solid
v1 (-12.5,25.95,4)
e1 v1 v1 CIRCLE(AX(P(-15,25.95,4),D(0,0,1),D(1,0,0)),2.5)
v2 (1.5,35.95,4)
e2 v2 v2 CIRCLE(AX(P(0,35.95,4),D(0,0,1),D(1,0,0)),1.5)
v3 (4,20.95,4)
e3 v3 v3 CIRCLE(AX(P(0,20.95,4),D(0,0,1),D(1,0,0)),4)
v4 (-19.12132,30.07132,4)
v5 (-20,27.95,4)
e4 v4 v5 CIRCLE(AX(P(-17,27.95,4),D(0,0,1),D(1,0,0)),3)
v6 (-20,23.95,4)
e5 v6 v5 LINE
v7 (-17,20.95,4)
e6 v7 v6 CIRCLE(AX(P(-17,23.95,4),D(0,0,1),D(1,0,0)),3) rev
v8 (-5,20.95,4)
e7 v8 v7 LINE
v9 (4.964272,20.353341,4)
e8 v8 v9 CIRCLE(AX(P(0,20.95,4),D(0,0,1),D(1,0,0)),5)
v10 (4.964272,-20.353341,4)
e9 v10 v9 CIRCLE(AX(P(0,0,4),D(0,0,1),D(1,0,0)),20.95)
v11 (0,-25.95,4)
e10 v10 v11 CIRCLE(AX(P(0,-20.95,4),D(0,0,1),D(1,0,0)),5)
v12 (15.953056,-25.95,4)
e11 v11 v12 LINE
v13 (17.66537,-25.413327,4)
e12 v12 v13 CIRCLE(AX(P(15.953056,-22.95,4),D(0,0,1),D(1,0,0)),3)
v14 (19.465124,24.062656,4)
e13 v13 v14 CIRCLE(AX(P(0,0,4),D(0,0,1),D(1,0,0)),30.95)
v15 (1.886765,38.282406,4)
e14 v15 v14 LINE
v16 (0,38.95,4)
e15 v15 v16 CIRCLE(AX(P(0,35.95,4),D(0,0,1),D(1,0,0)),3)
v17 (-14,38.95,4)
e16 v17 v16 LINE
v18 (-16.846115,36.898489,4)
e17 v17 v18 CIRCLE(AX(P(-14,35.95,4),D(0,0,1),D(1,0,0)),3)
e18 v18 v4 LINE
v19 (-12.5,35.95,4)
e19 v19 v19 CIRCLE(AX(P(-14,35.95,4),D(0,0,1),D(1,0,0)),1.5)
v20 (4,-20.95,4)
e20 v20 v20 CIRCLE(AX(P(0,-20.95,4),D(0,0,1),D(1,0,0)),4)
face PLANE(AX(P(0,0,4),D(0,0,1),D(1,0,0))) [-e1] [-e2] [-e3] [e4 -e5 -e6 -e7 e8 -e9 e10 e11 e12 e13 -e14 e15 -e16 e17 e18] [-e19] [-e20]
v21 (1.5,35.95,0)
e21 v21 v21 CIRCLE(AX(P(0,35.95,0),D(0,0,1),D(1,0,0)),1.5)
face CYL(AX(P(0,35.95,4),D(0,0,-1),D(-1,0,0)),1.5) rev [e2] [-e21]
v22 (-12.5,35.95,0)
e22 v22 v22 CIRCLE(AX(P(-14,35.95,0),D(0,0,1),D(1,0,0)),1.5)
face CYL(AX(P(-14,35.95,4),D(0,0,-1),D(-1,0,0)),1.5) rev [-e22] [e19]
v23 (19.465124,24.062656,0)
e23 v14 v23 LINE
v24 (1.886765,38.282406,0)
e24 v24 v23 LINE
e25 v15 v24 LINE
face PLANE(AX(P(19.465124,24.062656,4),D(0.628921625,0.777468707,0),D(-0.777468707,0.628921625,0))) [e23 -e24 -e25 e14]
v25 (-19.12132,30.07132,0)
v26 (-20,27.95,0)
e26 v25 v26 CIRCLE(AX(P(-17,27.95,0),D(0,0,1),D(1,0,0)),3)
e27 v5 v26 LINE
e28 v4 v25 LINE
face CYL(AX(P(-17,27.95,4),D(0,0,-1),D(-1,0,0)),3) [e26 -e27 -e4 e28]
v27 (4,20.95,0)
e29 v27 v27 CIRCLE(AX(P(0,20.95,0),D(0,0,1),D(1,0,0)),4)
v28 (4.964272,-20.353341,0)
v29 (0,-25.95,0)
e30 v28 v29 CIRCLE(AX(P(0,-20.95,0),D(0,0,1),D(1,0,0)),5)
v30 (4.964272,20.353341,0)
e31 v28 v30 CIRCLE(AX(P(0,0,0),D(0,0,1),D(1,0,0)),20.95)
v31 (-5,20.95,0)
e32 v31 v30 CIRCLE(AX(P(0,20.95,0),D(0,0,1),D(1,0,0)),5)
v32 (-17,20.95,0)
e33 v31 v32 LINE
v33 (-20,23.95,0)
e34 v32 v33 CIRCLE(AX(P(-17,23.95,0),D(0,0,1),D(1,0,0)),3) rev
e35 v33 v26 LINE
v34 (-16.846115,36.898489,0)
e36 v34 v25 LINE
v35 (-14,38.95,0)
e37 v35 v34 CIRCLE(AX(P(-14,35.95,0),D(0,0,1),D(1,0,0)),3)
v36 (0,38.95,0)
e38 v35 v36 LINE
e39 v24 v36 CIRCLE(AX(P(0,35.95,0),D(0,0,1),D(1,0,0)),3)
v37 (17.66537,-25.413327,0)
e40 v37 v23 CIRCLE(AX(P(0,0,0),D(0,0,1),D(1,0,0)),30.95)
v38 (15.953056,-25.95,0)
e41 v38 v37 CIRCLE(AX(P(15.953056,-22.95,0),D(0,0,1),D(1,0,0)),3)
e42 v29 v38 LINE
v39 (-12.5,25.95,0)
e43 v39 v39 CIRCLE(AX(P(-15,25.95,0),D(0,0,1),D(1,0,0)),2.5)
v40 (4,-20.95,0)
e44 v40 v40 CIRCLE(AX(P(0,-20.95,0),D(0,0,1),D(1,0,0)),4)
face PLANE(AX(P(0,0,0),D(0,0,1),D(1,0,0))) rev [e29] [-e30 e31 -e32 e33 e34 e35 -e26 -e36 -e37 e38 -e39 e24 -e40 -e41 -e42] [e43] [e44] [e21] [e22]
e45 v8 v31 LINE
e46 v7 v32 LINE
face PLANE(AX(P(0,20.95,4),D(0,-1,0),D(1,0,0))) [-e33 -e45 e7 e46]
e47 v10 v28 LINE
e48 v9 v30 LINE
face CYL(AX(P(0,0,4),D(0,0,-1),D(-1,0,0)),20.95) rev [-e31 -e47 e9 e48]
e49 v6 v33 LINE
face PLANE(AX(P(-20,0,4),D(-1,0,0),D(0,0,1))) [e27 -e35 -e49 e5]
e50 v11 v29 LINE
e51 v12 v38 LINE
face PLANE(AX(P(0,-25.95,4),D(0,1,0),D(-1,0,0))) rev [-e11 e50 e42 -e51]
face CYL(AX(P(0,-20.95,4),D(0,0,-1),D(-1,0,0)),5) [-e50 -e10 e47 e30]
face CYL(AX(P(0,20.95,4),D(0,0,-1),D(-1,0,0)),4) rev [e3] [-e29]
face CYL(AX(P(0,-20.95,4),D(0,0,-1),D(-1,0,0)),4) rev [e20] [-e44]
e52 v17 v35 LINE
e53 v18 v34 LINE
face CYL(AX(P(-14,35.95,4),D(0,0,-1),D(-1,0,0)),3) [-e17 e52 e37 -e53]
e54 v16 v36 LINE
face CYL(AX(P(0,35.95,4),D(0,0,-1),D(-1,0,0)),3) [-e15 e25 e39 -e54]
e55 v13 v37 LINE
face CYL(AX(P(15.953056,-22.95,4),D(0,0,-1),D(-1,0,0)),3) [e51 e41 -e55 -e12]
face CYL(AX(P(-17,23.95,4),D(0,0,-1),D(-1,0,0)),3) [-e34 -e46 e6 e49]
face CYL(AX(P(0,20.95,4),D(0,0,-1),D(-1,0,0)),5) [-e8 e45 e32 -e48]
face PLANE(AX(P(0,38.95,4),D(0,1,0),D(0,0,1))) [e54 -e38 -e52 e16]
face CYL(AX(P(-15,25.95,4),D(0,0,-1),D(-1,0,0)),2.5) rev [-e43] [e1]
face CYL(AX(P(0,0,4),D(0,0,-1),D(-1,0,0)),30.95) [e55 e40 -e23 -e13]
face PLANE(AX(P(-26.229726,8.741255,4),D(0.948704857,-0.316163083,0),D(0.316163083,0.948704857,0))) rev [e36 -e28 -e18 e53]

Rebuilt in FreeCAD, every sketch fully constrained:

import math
import FreeCAD as App
import Part
import Sketcher

V = App.Vector
Q = App.Units.Quantity

doc = App.newDocument("Part")
body = doc.addObject("PartDesign::Body", "Body")

# Sketch on XY plane
sketch1 = doc.addObject("Sketcher::SketchObject", "Sketch")
body.addObject(sketch1)
sketch1.AttachmentSupport = (doc.XY_Plane, [""])
sketch1.MapMode = "FlatFace"
sketch1.addGeometry(Part.ArcOfCircle(Part.Circle(V(0, 0, 0), V(0, 0, 1), 30.9), math.radians(-55), math.radians(51)), False)
sketch1.addGeometry(Part.LineSegment(V(19.5, 24.1, 0), V(1.9, 38.3, 0)), False)
sketch1.addGeometry(Part.ArcOfCircle(Part.Circle(V(0, 35.9, 0), V(0, 0, 1), 3), math.radians(51), math.radians(90)), False)
sketch1.addGeometry(Part.LineSegment(V(0, 39, 0), V(-14, 39, 0)), False)
sketch1.addGeometry(Part.ArcOfCircle(Part.Circle(V(-14, 36, 0), V(0, 0, 1), 3), math.radians(90), math.radians(162)), False)
sketch1.addGeometry(Part.LineSegment(V(-16.8, 36.9, 0), V(-19.1, 30.1, 0)), False)
sketch1.addGeometry(Part.ArcOfCircle(Part.Circle(V(-17, 28, 0), V(0, 0, 1), 3), math.radians(135), math.radians(180)), False)
sketch1.addGeometry(Part.LineSegment(V(-20, 27.9, 0), V(-20, 23.9, 0)), False)
sketch1.addGeometry(Part.ArcOfCircle(Part.Circle(V(-17, 23.9, 0), V(0, 0, 1), 3), math.radians(180), math.radians(270)), False)
sketch1.addGeometry(Part.LineSegment(V(-17, 20.9, 0), V(-5, 20.9, 0)), False)
sketch1.addGeometry(Part.ArcOfCircle(Part.Circle(V(0, 21, 0), V(0, 0, 1), 5), math.radians(-180), math.radians(-7)), False)
sketch1.addGeometry(Part.ArcOfCircle(Part.Circle(V(0, 0, 0), V(0, 0, 1), 20.9), math.radians(-76), math.radians(76)), False)
sketch1.addGeometry(Part.ArcOfCircle(Part.Circle(V(0, -20.9, 0), V(0, 0, 1), 5), math.radians(7), math.radians(270)), False)
sketch1.addGeometry(Part.LineSegment(V(0, -25.9, 0), V(16, -25.9, 0)), False)
sketch1.addGeometry(Part.ArcOfCircle(Part.Circle(V(16, -22.9, 0), V(0, 0, 1), 3), math.radians(-90), math.radians(-55)), False)
sketch1.addGeometry(Part.Circle(V(0, -20.9, 0), V(0, 0, 1), 4), False)
sketch1.addGeometry(Part.Circle(V(-15, 25.9, 0), V(0, 0, 1), 2.5), False)
sketch1.addGeometry(Part.Circle(V(-14, 36, 0), V(0, 0, 1), 1.5), False)
sketch1.addGeometry(Part.Circle(V(0, 20.9, 0), V(0, 0, 1), 4), False)
sketch1.addGeometry(Part.Circle(V(0, 36, 0), V(0, 0, 1), 1.5), False)
sketch1.addConstraint(Sketcher.Constraint("Tangent", 0, 2, 1, 1))
sketch1.addConstraint(Sketcher.Constraint("Tangent", 1, 2, 2, 1))
sketch1.addConstraint(Sketcher.Constraint("Tangent", 2, 2, 3, 1))
sketch1.addConstraint(Sketcher.Constraint("Tangent", 3, 2, 4, 1))
sketch1.addConstraint(Sketcher.Constraint("Tangent", 4, 2, 5, 1))
sketch1.addConstraint(Sketcher.Constraint("Coincident", 5, 2, 6, 1))
sketch1.addConstraint(Sketcher.Constraint("Tangent", 6, 2, 7, 1))
sketch1.addConstraint(Sketcher.Constraint("Tangent", 7, 2, 8, 1))
sketch1.addConstraint(Sketcher.Constraint("Tangent", 8, 2, 9, 1))
sketch1.addConstraint(Sketcher.Constraint("Coincident", 9, 2, 10, 1))
sketch1.addConstraint(Sketcher.Constraint("Coincident", 10, 2, 11, 2))
sketch1.addConstraint(Sketcher.Constraint("Coincident", 11, 1, 12, 1))
sketch1.addConstraint(Sketcher.Constraint("Tangent", 12, 2, 13, 1))
sketch1.addConstraint(Sketcher.Constraint("Tangent", 13, 2, 14, 1))
sketch1.addConstraint(Sketcher.Constraint("Tangent", 14, 2, 0, 1))
sketch1.addConstraint(Sketcher.Constraint("Horizontal", 3))
sketch1.addConstraint(Sketcher.Constraint("Vertical", 7))
sketch1.addConstraint(Sketcher.Constraint("Horizontal", 9))
sketch1.addConstraint(Sketcher.Constraint("Horizontal", 13))
sketch1.addConstraint(Sketcher.Constraint("Coincident", 0, 3, -1, 1))
sketch1.addConstraint(Sketcher.Constraint("Coincident", 11, 3, -1, 1))
sketch1.addConstraint(Sketcher.Constraint("Coincident", 15, 3, 12, 3))
sketch1.addConstraint(Sketcher.Constraint("Coincident", 17, 3, 4, 3))
sketch1.addConstraint(Sketcher.Constraint("Coincident", 18, 3, 10, 3))
sketch1.addConstraint(Sketcher.Constraint("Coincident", 19, 3, 2, 3))
sketch1.addConstraint(Sketcher.Constraint("Equal", 2, 4))
sketch1.addConstraint(Sketcher.Constraint("Equal", 4, 6))
sketch1.addConstraint(Sketcher.Constraint("Equal", 6, 8))
sketch1.addConstraint(Sketcher.Constraint("Equal", 10, 12))
sketch1.addConstraint(Sketcher.Constraint("Equal", 8, 14))
sketch1.addConstraint(Sketcher.Constraint("Equal", 15, 18))
sketch1.addConstraint(Sketcher.Constraint("Equal", 17, 19))
sketch1.addConstraint(Sketcher.Constraint("Symmetric", 10, 3, 12, 3, -1, 1))
sketch1.addConstraint(Sketcher.Constraint("PointOnObject", 2, 3, -2))
sketch1.addConstraint(Sketcher.Constraint("PointOnObject", 10, 3, -2))
sketch1.addConstraint(Sketcher.Constraint("Horizontal", 18, 3, 8, 2))
sketch1.addConstraint(Sketcher.Constraint("Diameter", 15, Q("8 mm")))
sketch1.addConstraint(Sketcher.Constraint("Diameter", 16, Q("5 mm")))
sketch1.addConstraint(Sketcher.Constraint("Diameter", 17, Q("3 mm")))
sketch1.addConstraint(Sketcher.Constraint("Radius", 2, Q("3 mm")))
sketch1.addConstraint(Sketcher.Constraint("Radius", 10, Q("5 mm")))
sketch1.addConstraint(Sketcher.Constraint("DistanceX", 3, 2, 3, 1, Q("14 mm")))
sketch1.addConstraint(Sketcher.Constraint("DistanceX", 9, 1, 9, 2, Q("12 mm")))
sketch1.addConstraint(Sketcher.Constraint("DistanceY", 7, 2, 7, 1, Q("4 mm")))
sketch1.addConstraint(Sketcher.Constraint("Radius", 0, Q("30.95 mm")))
sketch1.addConstraint(Sketcher.Constraint("Radius", 11, Q("20.95 mm")))
sketch1.addConstraint(Sketcher.Constraint("DistanceX", 16, 3, -1, 1, Q("15 mm")))
sketch1.addConstraint(Sketcher.Constraint("DistanceY", 6, 3, 4, 3, Q("8 mm")))
sketch1.addConstraint(Sketcher.Constraint("DistanceY", 16, 3, 6, 3, Q("2 mm")))
sketch1.addConstraint(Sketcher.Constraint("DistanceY", 12, 3, 10, 3, Q("41.9 mm")))
sketch1.addConstraint(Sketcher.Constraint("DistanceY", -1, 1, 4, 2, Q("36.898489 mm")))
pad1 = doc.addObject("PartDesign::Pad", "Pad")
body.addObject(pad1)
pad1.Profile = sketch1
pad1.Length = 4

doc.recompute()
